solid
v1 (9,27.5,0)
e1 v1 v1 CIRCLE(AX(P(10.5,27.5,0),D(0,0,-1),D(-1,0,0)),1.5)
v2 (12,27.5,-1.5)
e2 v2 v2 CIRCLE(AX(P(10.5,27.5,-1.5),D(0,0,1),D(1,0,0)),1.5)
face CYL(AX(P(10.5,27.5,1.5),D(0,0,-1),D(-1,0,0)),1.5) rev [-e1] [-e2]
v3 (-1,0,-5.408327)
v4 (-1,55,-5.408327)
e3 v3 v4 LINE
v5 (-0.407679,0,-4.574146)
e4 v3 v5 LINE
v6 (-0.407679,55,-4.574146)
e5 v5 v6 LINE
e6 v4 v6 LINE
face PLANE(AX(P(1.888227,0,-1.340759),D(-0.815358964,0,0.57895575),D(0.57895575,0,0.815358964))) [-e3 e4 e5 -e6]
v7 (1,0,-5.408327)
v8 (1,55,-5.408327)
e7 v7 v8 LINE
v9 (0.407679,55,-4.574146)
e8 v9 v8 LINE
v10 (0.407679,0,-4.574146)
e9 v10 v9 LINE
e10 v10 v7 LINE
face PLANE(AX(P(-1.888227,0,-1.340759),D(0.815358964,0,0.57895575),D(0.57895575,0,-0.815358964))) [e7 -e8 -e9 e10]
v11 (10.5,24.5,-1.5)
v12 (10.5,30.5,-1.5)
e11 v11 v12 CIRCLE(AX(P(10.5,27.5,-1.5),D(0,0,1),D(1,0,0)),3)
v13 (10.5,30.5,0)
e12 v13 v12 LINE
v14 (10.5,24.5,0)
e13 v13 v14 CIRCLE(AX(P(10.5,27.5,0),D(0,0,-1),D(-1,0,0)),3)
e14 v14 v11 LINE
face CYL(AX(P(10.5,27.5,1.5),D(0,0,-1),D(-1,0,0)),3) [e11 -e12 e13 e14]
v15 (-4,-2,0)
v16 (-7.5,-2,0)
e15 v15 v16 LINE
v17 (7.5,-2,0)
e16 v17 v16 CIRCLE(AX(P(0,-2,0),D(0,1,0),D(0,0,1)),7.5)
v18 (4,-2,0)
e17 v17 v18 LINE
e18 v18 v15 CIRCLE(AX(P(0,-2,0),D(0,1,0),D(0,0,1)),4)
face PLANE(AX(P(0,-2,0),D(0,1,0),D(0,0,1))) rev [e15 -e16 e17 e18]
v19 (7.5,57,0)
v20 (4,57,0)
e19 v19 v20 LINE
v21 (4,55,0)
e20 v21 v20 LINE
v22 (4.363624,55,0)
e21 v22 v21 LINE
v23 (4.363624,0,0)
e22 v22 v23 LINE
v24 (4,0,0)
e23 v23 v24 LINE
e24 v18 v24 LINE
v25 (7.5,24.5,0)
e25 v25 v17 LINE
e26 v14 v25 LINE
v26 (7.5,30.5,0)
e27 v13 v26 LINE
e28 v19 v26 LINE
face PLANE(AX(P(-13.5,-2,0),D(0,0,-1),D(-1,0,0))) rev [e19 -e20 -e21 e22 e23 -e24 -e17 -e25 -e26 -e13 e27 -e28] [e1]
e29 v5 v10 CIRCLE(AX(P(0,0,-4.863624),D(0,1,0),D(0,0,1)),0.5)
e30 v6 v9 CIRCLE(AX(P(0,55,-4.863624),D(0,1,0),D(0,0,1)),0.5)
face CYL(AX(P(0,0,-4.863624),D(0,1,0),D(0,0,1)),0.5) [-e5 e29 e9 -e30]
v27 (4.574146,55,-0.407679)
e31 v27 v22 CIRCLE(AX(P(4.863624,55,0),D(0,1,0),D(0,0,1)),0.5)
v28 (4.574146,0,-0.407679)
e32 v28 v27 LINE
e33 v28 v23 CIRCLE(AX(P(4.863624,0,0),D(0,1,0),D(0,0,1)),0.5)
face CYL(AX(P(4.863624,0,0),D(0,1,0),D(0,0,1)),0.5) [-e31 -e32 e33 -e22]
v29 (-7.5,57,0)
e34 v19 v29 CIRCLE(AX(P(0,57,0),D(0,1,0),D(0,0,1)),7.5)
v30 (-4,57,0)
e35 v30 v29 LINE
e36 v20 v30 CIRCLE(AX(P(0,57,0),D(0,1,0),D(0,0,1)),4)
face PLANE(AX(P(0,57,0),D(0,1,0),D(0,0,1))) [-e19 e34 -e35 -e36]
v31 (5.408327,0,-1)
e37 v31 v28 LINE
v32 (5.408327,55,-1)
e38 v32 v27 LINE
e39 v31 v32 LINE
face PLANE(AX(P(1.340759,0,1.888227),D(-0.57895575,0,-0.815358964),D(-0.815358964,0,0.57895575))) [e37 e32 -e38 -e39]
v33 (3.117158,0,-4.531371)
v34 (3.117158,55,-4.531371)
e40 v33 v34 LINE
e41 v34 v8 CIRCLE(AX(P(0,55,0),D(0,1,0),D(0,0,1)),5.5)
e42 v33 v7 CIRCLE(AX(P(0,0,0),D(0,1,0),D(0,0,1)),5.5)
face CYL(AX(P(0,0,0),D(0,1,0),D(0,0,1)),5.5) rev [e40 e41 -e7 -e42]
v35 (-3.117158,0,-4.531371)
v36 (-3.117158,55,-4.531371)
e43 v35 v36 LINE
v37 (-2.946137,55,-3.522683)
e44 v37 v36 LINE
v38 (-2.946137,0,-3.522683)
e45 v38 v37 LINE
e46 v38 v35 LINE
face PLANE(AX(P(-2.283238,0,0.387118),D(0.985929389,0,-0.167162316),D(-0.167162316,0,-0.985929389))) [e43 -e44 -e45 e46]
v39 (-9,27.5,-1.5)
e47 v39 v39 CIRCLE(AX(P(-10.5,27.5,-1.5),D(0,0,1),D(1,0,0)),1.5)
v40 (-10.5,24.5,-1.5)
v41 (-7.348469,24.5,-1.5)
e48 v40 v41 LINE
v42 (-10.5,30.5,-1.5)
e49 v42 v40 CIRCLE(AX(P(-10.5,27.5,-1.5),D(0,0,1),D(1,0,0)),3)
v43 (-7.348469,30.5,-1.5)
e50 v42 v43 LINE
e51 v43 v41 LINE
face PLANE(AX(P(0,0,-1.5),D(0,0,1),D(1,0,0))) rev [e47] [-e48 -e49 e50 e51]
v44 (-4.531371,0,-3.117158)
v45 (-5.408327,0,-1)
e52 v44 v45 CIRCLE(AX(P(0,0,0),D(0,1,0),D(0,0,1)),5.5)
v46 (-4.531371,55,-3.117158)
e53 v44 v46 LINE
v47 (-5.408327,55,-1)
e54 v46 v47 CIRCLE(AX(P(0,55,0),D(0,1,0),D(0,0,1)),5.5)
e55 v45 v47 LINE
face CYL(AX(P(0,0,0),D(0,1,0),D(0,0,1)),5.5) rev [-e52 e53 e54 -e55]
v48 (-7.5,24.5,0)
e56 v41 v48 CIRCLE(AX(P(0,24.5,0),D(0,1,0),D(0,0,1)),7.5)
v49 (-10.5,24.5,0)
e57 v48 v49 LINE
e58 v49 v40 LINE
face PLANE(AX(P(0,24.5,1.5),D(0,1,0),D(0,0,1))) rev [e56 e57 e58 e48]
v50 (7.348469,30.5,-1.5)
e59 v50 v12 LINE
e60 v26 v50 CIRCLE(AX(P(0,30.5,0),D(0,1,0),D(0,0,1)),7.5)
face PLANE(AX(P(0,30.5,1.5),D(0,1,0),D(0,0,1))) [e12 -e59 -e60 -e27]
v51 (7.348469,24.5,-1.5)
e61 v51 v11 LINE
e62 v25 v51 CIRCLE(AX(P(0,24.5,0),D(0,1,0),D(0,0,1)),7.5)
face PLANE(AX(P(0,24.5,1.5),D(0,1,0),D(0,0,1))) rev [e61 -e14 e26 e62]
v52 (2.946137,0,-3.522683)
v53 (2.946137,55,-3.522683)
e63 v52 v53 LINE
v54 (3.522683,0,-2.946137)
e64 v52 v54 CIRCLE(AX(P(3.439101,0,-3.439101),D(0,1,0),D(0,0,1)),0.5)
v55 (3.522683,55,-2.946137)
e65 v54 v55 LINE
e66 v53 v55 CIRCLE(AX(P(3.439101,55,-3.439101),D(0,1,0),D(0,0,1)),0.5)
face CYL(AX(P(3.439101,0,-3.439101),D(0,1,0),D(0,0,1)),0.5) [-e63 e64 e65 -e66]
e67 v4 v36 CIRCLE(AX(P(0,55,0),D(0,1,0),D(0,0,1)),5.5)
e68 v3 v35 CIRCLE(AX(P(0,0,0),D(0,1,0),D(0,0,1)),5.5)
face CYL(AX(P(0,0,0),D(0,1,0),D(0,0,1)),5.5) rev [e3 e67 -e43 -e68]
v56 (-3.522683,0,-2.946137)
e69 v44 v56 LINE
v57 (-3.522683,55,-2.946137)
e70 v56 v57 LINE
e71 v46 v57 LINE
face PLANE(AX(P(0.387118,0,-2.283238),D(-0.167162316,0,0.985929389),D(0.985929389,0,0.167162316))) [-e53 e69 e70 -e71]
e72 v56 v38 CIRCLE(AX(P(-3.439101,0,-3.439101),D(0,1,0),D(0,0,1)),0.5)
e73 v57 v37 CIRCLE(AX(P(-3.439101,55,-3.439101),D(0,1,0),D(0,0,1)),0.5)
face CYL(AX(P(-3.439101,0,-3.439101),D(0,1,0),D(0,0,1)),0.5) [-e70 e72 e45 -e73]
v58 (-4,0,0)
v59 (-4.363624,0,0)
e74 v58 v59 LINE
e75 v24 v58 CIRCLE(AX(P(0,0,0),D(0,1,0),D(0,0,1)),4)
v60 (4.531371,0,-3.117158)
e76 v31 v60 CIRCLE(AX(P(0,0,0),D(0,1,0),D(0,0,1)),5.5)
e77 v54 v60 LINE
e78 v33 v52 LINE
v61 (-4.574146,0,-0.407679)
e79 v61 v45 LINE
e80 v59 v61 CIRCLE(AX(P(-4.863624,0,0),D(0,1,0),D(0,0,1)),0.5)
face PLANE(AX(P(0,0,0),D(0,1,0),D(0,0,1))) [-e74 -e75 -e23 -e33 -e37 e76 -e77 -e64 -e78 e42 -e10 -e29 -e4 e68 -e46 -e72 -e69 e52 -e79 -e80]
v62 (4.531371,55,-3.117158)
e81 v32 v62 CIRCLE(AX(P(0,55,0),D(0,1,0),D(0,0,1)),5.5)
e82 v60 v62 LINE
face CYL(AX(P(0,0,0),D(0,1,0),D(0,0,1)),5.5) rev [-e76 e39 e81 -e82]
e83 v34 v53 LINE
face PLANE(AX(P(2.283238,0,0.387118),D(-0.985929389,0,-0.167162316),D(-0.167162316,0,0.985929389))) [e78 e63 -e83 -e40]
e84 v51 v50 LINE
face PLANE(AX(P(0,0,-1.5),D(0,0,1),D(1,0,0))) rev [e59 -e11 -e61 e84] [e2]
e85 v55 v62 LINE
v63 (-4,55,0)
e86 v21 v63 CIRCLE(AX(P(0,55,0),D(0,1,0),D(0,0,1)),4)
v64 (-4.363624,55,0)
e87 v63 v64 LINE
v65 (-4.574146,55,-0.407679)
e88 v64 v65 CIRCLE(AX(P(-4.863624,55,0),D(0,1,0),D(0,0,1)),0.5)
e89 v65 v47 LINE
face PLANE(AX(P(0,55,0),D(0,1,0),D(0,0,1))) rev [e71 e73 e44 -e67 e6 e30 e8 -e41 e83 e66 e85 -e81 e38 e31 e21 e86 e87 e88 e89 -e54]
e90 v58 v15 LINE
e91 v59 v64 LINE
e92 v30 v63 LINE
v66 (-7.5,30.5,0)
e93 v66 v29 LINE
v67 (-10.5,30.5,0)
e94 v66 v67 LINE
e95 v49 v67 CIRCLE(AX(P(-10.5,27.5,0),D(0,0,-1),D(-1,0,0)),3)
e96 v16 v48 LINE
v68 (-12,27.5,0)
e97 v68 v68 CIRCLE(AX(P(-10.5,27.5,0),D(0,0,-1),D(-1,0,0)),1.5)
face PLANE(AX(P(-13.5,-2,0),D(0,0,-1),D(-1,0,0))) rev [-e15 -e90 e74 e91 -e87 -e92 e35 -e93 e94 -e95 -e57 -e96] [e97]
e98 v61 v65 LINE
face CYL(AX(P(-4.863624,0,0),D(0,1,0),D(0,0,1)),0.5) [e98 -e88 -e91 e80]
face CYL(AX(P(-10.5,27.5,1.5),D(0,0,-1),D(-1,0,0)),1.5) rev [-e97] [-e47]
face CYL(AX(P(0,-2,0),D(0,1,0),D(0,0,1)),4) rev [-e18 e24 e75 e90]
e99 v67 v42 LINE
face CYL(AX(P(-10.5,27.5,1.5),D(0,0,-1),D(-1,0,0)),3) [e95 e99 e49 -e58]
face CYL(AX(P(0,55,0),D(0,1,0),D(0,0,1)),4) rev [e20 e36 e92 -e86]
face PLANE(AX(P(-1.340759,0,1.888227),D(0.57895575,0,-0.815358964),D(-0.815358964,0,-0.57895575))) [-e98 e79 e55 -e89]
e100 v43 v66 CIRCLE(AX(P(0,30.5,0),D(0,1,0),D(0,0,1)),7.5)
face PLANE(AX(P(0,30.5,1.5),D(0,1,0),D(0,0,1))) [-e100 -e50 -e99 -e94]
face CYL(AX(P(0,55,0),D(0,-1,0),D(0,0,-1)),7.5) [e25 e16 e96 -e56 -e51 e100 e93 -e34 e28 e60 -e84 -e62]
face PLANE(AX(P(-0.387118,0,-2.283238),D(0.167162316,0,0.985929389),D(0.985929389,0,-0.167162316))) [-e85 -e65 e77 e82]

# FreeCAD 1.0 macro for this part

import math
import FreeCAD as App
import Part
import Sketcher
from FreeCAD import Vector

doc = App.newDocument("Part")
body = doc.addObject("PartDesign::Body", "Body")

sketch1 = body.newObject("Sketcher::SketchObject", "Sketch")
sketch1.AttachmentSupport = (doc.getObject("XZ_Plane"), [""])
sketch1.MapMode = "FlatFace"
sketch1.addGeometry(Part.Circle(Vector(0, 0, 0), Vector(0, 0, 1), 8), False)
sketch1.addConstraint([
    Sketcher.Constraint("Coincident", 0, 3, -1, 1),
    Sketcher.Constraint("Diameter", 0, 15.0),
])
pad1 = body.newObject("PartDesign::Pad", "Pad")
pad1.Profile = sketch1
pad1.Length = 55
pad1.Reversed = True

sketch2 = body.newObject("Sketcher::SketchObject", "Sketch001")
sketch2.AttachmentSupport = (doc.getObject("XZ_Plane"), [""])
sketch2.MapMode = "FlatFace"
sketch2.AttachmentOffset = App.Placement(Vector(0, 0, -55), App.Rotation())
sketch2.addGeometry([
    Part.LineSegment(Vector(-0.4, -4.6, 0), Vector(-1, -5.4, 0)),
    Part.ArcOfCircle(Part.Circle(Vector(0, 0, 0), Vector(0, 0, 1), 5.5), math.radians(-125), math.radians(-100)),
    Part.LineSegment(Vector(-3.1, -4.5, 0), Vector(-2.9, -3.5, 0)),
    Part.ArcOfCircle(Part.Circle(Vector(-3.4, -3.4, 0), Vector(0, 0, 1), 0.5), math.radians(-10), math.radians(100)),
    Part.LineSegment(Vector(-3.5, -2.9, 0), Vector(-4.5, -3.1, 0)),
    Part.ArcOfCircle(Part.Circle(Vector(0, 0, 0), Vector(0, 0, 1), 5.5), math.radians(-170), math.radians(-145)),
    Part.LineSegment(Vector(-5.4, -1, 0), Vector(-4.6, -0.4, 0)),
    Part.ArcOfCircle(Part.Circle(Vector(-4.9, 0, 0), Vector(0, 0, 1), 0.5), math.radians(-55), math.radians(55)),
    Part.LineSegment(Vector(-4.6, 0.4, 0), Vector(-5.4, 1, 0)),
    Part.ArcOfCircle(Part.Circle(Vector(0, 0, 0), Vector(0, 0, 1), 5.5), math.radians(145), math.radians(170)),
    Part.LineSegment(Vector(-4.5, 3.1, 0), Vector(-3.5, 2.9, 0)),
    Part.ArcOfCircle(Part.Circle(Vector(-3.4, 3.4, 0), Vector(0, 0, 1), 0.5), math.radians(-100), math.radians(10)),
    Part.LineSegment(Vector(-2.9, 3.5, 0), Vector(-3.1, 4.5, 0)),
    Part.ArcOfCircle(Part.Circle(Vector(0, 0, 0), Vector(0, 0, 1), 5.5), math.radians(100), math.radians(125)),
    Part.LineSegment(Vector(-1, 5.4, 0), Vector(-0.4, 4.6, 0)),
    Part.ArcOfCircle(Part.Circle(Vector(0, 4.9, 0), Vector(0, 0, 1), 0.5), math.radians(-145), math.radians(-35)),
    Part.LineSegment(Vector(0.4, 4.6, 0), Vector(1, 5.4, 0)),
    Part.ArcOfCircle(Part.Circle(Vector(0, 0, 0), Vector(0, 0, 1), 5.5), math.radians(55), math.radians(80)),
    Part.LineSegment(Vector(3.1, 4.5, 0), Vector(2.9, 3.5, 0)),
    Part.ArcOfCircle(Part.Circle(Vector(3.4, 3.4, 0), Vector(0, 0, 1), 0.5), math.radians(170), math.radians(280)),
    Part.LineSegment(Vector(3.5, 2.9, 0), Vector(4.5, 3.1, 0)),
    Part.ArcOfCircle(Part.Circle(Vector(0, 0, 0), Vector(0, 0, 1), 5.5), math.radians(10), math.radians(35)),
    Part.LineSegment(Vector(5.4, 1, 0), Vector(4.6, 0.4, 0)),
    Part.ArcOfCircle(Part.Circle(Vector(4.9, 0, 0), Vector(0, 0, 1), 0.5), math.radians(125), math.radians(235)),
    Part.LineSegment(Vector(4.6, -0.4, 0), Vector(5.4, -1, 0)),
    Part.ArcOfCircle(Part.Circle(Vector(0, 0, 0), Vector(0, 0, 1), 5.5), math.radians(-35), math.radians(-10)),
    Part.LineSegment(Vector(4.5, -3.1, 0), Vector(3.5, -2.9, 0)),
    Part.ArcOfCircle(Part.Circle(Vector(3.4, -3.4, 0), Vector(0, 0, 1), 0.5), math.radians(80), math.radians(190)),
    Part.LineSegment(Vector(2.9, -3.5, 0), Vector(3.1, -4.5, 0)),
    Part.ArcOfCircle(Part.Circle(Vector(0, 0, 0), Vector(0, 0, 1), 5.5), math.radians(-80), math.radians(-55)),
    Part.LineSegment(Vector(1, -5.4, 0), Vector(0.4, -4.6, 0)),
    Part.ArcOfCircle(Part.Circle(Vector(0, -4.9, 0), Vector(0, 0, 1), 0.5), math.radians(35), math.radians(145)),
], False)
sketch2.addConstraint([
    Sketcher.Constraint("Coincident", 0, 2, 1, 2),
    Sketcher.Constraint("Coincident", 1, 1, 2, 1),
    Sketcher.Constraint("Tangent", 2, 2, 3, 1),
    Sketcher.Constraint("Tangent", 3, 2, 4, 1),
    Sketcher.Constraint("Coincident", 4, 2, 5, 2),
    Sketcher.Constraint("Coincident", 5, 1, 6, 1),
    Sketcher.Constraint("Tangent", 6, 2, 7, 1),
    Sketcher.Constraint("Tangent", 7, 2, 8, 1),
    Sketcher.Constraint("Coincident", 8, 2, 9, 2),
    Sketcher.Constraint("Coincident", 9, 1, 10, 1),
    Sketcher.Constraint("Tangent", 10, 2, 11, 1),
    Sketcher.Constraint("Tangent", 11, 2, 12, 1),
    Sketcher.Constraint("Coincident", 12, 2, 13, 2),
    Sketcher.Constraint("Coincident", 13, 1, 14, 1),
    Sketcher.Constraint("Tangent", 14, 2, 15, 1),
    Sketcher.Constraint("Tangent", 15, 2, 16, 1),
    Sketcher.Constraint("Coincident", 16, 2, 17, 2),
    Sketcher.Constraint("Coincident", 17, 1, 18, 1),
    Sketcher.Constraint("Tangent", 18, 2, 19, 1),
    Sketcher.Constraint("Tangent", 19, 2, 20, 1),
    Sketcher.Constraint("Coincident", 20, 2, 21, 2),
    Sketcher.Constraint("Coincident", 21, 1, 22, 1),
    Sketcher.Constraint("Tangent", 22, 2, 23, 1),
    Sketcher.Constraint("Tangent", 23, 2, 24, 1),
    Sketcher.Constraint("Coincident", 24, 2, 25, 2),
    Sketcher.Constraint("Coincident", 25, 1, 26, 1),
    Sketcher.Constraint("Tangent", 26, 2, 27, 1),
    Sketcher.Constraint("Tangent", 27, 2, 28, 1),
    Sketcher.Constraint("Coincident", 28, 2, 29, 2),
    Sketcher.Constraint("Coincident", 29, 1, 30, 1),
    Sketcher.Constraint("Tangent", 30, 2, 31, 1),
    Sketcher.Constraint("Tangent", 31, 2, 0, 1),
    Sketcher.Constraint("Coincident", 1, 3, -1, 1),
    Sketcher.Constraint("Coincident", 5, 3, -1, 1),
    Sketcher.Constraint("Coincident", 9, 3, -1, 1),
    Sketcher.Constraint("Coincident", 13, 3, -1, 1),
    Sketcher.Constraint("Coincident", 17, 3, -1, 1),
    Sketcher.Constraint("Coincident", 21, 3, -1, 1),
    Sketcher.Constraint("Coincident", 25, 3, -1, 1),
    Sketcher.Constraint("Coincident", 29, 3, -1, 1),
    Sketcher.Constraint("Equal", 1, 5),
    Sketcher.Constraint("Equal", 3, 7),
    Sketcher.Constraint("Equal", 5, 9),
    Sketcher.Constraint("Equal", 7, 11),
    Sketcher.Constraint("Equal", 9, 13),
    Sketcher.Constraint("Equal", 11, 15),
    Sketcher.Constraint("Equal", 13, 17),
    Sketcher.Constraint("Equal", 15, 19),
    Sketcher.Constraint("Equal", 17, 21),
    Sketcher.Constraint("Equal", 19, 23),
    Sketcher.Constraint("Equal", 21, 25),
    Sketcher.Constraint("Equal", 23, 27),
    Sketcher.Constraint("Equal", 25, 29),
    Sketcher.Constraint("Equal", 27, 31),
    Sketcher.Constraint("Symmetric", 3, 3, 19, 3, -1, 1),
    Sketcher.Constraint("Symmetric", 7, 3, 23, 3, -1, 1),
    Sketcher.Constraint("Symmetric", 11, 3, 27, 3, -1, 1),
    Sketcher.Constraint("Symmetric", 15, 3, 31, 3, -1, 1),
    Sketcher.Constraint("Symmetric", 11, 3, 19, 3, -2),
    Sketcher.Constraint("Symmetric", 14, 2, 15, 2, -2),
    Sketcher.Constraint("Symmetric", 7, 2, 22, 2, -2),
    Sketcher.Constraint("Perpendicular", 0, 8),
    Sketcher.Constraint("Perpendicular", 2, 10),
    Sketcher.Constraint("Perpendicular", 4, 12),
    Sketcher.Constraint("Perpendicular", 6, 14),
    Sketcher.Constraint("Perpendicular", 8, 16),
    Sketcher.Constraint("Perpendicular", 10, 18),
    Sketcher.Constraint("Perpendicular", 12, 20),
    Sketcher.Constraint("Perpendicular", 16, 24),
    Sketcher.Constraint("Perpendicular", 18, 26),
    Sketcher.Constraint("Perpendicular", 20, 28),
    Sketcher.Constraint("Perpendicular", 22, 30),
    Sketcher.Constraint("Horizontal", 12, 2, 17, 1),
    Sketcher.Constraint("Equal", 0, 2),
    Sketcher.Constraint("Equal", 2, 4),
    Sketcher.Constraint("Equal", 4, 6),
    Sketcher.Constraint("Radius", 1, 5.5),
    Sketcher.Constraint("Radius", 3, 0.5),
    Sketcher.Constraint("DistanceX", 0, 2, -1, 1, 1.0),
    Sketcher.Constraint("DistanceX", 3, 3, -1, 1, 3.439101),
    Sketcher.Constraint("DistanceY", 1, 1, -1, 1, 4.531371),
])
pocket1 = body.newObject("PartDesign::Pocket", "Pocket")
pocket1.Profile = sketch2
pocket1.Type = "ThroughAll"
pocket1.Reversed = True

sketch3 = body.newObject("Sketcher::SketchObject", "Sketch002")
sketch3.AttachmentSupport = (doc.getObject("XZ_Plane"), [""])
sketch3.MapMode = "FlatFace"
sketch3.addGeometry([
    Part.Circle(Vector(0, 0, 0), Vector(0, 0, 1), 7.5),
    Part.Circle(Vector(0, 0, 0), Vector(0, 0, 1), 4),
], False)
sketch3.addConstraint([
    Sketcher.Constraint("Coincident", 0, 3, -1, 1),
    Sketcher.Constraint("Coincident", 1, 3, -1, 1),
    Sketcher.Constraint("Diameter", 0, 15.0),
    Sketcher.Constraint("Diameter", 1, 8.0),
])
pad2 = body.newObject("PartDesign::Pad", "Pad001")
pad2.Profile = sketch3
pad2.Length = 2
doc.recompute()

linearpattern = body.newObject("PartDesign::LinearPattern", "LinearPattern")
linearpattern.Originals = [pad2]
linearpattern.Direction = (doc.getObject("Y_Axis"), [""])
linearpattern.Mode = "offset"
linearpattern.Offset = 57
linearpattern.Occurrences = 2
body.Tip = linearpattern

sketch4 = body.newObject("Sketcher::SketchObject", "Sketch003")
sketch4.AttachmentSupport = (doc.getObject("XY_Plane"), [""])
sketch4.MapMode = "FlatFace"
sketch4.addGeometry([
    Part.LineSegment(Vector(-6, 24.5, 0), Vector(-6, 30.5, 0)),
    Part.LineSegment(Vector(-6, 30.5, 0), Vector(-10.5, 30.5, 0)),
    Part.ArcOfCircle(Part.Circle(Vector(-10.5, 27.5, 0), Vector(0, 0, 1), 3), math.radians(90), math.radians(270)),
    Part.LineSegment(Vector(-10.5, 24.5, 0), Vector(-6, 24.5, 0)),
    Part.Circle(Vector(-10.5, 27.5, 0), Vector(0, 0, 1), 1.5),
    Part.LineSegment(Vector(10.5, 30.5, 0), Vector(6, 30.5, 0)),
    Part.LineSegment(Vector(6, 30.5, 0), Vector(6, 24.5, 0)),
    Part.LineSegment(Vector(6, 24.5, 0), Vector(10.5, 24.5, 0)),
    Part.ArcOfCircle(Part.Circle(Vector(10.5, 27.5, 0), Vector(0, 0, 1), 3), math.radians(-90), math.radians(90)),
    Part.Circle(Vector(10.5, 27.5, 0), Vector(0, 0, 1), 1.5),
], False)
sketch4.addConstraint([
    Sketcher.Constraint("Coincident", 0, 2, 1, 1),
    Sketcher.Constraint("Tangent", 1, 2, 2, 1),
    Sketcher.Constraint("Tangent", 2, 2, 3, 1),
    Sketcher.Constraint("Coincident", 3, 2, 0, 1),
    Sketcher.Constraint("Coincident", 5, 2, 6, 1),
    Sketcher.Constraint("Coincident", 6, 2, 7, 1),
    Sketcher.Constraint("Tangent", 7, 2, 8, 1),
    Sketcher.Constraint("Tangent", 8, 2, 5, 1),
    Sketcher.Constraint("Vertical", 0),
    Sketcher.Constraint("Horizontal", 1),
    Sketcher.Constraint("Horizontal", 3),
    Sketcher.Constraint("Horizontal", 5),
    Sketcher.Constraint("Vertical", 6),
    Sketcher.Constraint("Horizontal", 7),
    Sketcher.Constraint("Coincident", 4, 3, 2, 3),
    Sketcher.Constraint("Coincident", 9, 3, 8, 3),
    Sketcher.Constraint("Equal", 2, 8),
    Sketcher.Constraint("Equal", 4, 9),
    Sketcher.Constraint("Symmetric", 2, 3, 8, 3, -2),
    Sketcher.Constraint("Equal", 3, 5),
    Sketcher.Constraint("Diameter", 4, 3.0),
    Sketcher.Constraint("Radius", 2, 3.0),
    Sketcher.Constraint("DistanceX", 1, 2, 1, 1, 4.5),
    Sketcher.Constraint("DistanceX", 0, 2, -1, 1, 6.0),
    Sketcher.Constraint("DistanceY", -1, 1, 2, 3, 27.5),
])
pad3 = body.newObject("PartDesign::Pad", "Pad002")
pad3.Profile = sketch4
pad3.Length = 3
pad3.Midplane = True

sketch5 = body.newObject("Sketcher::SketchObject", "Sketch004")
sketch5.AttachmentSupport = (doc.getObject("XZ_Plane"), [""])
sketch5.MapMode = "FlatFace"
sketch5.addGeometry([
    Part.LineSegment(Vector(-14, 0, 0), Vector(-14, 8, 0)),
    Part.LineSegment(Vector(-14, 8, 0), Vector(14, 8, 0)),
    Part.LineSegment(Vector(14, 8, 0), Vector(14, 0, 0)),
    Part.LineSegment(Vector(14, 0, 0), Vector(-14, 0, 0)),
], False)
sketch5.addConstraint([
    Sketcher.Constraint("Coincident", 0, 2, 1, 1),
    Sketcher.Constraint("Coincident", 1, 2, 2, 1),
    Sketcher.Constraint("Coincident", 2, 2, 3, 1),
    Sketcher.Constraint("Coincident", 3, 2, 0, 1),
    Sketcher.Constraint("Vertical", 0),
    Sketcher.Constraint("Horizontal", 1),
    Sketcher.Constraint("Vertical", 2),
    Sketcher.Constraint("Horizontal", 3),
    Sketcher.Constraint("Symmetric", 2, 2, 3, 2, -1, 1),
    Sketcher.Constraint("DistanceX", 1, 1, 1, 2, 27.0),
    Sketcher.Constraint("DistanceY", 0, 1, 0, 2, 7.5),
])
pocket2 = body.newObject("PartDesign::Pocket", "Pocket001")
pocket2.Profile = sketch5
pocket2.Type = "ThroughAll"
pocket2.Midplane = True

doc.recompute()
